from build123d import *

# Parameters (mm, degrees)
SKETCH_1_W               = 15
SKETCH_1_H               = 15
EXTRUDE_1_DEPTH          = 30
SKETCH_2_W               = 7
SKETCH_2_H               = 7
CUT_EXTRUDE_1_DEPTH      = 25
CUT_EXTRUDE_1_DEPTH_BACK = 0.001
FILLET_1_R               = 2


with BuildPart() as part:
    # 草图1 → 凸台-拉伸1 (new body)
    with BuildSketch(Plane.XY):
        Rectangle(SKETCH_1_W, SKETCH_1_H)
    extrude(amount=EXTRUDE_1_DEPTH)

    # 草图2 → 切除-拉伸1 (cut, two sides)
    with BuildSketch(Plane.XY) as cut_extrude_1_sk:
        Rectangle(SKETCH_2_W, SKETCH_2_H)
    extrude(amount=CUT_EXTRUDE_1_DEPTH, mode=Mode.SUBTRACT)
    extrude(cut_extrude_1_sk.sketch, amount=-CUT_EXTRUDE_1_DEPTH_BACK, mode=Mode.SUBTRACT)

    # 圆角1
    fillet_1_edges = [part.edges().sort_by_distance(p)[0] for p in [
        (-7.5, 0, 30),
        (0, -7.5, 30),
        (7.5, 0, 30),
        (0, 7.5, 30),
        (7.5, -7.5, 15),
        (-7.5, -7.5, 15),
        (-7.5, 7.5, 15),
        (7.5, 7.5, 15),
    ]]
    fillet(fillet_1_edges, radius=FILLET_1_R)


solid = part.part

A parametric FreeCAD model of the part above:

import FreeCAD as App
import Part
import Sketcher

V = App.Vector
Q = App.Units.Quantity


def edges_at(feature, points):
    """Names of the edges that pass closest to the given points."""
    edges = feature.Shape.Edges
    near = lambda p: min(range(len(edges)), key=lambda i: edges[i].distToShape(Part.Vertex(*p))[0])
    return sorted({f"Edge{near(p) + 1}" for p in points})

doc = App.newDocument("Part")
params = doc.addObject("Spreadsheet::Sheet", "Params")
for row, (alias, value) in enumerate([
    ("sketch1_width", "15 mm"),
    ("pad1_length", "30 mm"),
    ("sketch2_width", "7 mm"),
    ("pocket1_length", "25 mm"),
    ("pocket1_length2", "0.001 mm"),
    ("fillet_radius", "2 mm"),
], start=1):
    params.set(f"A{row}", alias)
    params.set(f"B{row}", "=" + value)
    params.setAlias(f"B{row}", alias)

body = doc.addObject("PartDesign::Body", "Body")

# Sketch on XY plane
sketch1 = doc.addObject("Sketcher::SketchObject", "Sketch")
body.addObject(sketch1)
sketch1.AttachmentSupport = (doc.XY_Plane, [""])
sketch1.MapMode = "FlatFace"
sketch1.addGeometry([
    Part.LineSegment(V(-8, 8, 0), V(-8, -8, 0)),
    Part.LineSegment(V(-8, -8, 0), V(8, -8, 0)),
    Part.LineSegment(V(8, -8, 0), V(8, 8, 0)),
    Part.LineSegment(V(8, 8, 0), V(-8, 8, 0)),
], False)
sketch1.addConstraint([
    Sketcher.Constraint("Coincident", 0, 2, 1, 1),
    Sketcher.Constraint("Coincident", 1, 2, 2, 1),
    Sketcher.Constraint("Coincident", 2, 2, 3, 1),
    Sketcher.Constraint("Coincident", 3, 2, 0, 1),
    Sketcher.Constraint("Vertical", 0),
    Sketcher.Constraint("Horizontal", 1),
    Sketcher.Constraint("Vertical", 2),
    Sketcher.Constraint("Horizontal", 3),
    Sketcher.Constraint("Symmetric", 0, 2, 2, 2, -1, 1),
    Sketcher.Constraint("Equal", 3, 0),
    Sketcher.Constraint("DistanceX", 1, 1, 1, 2, Q("15 mm")),
])
sketch1.setExpression("Constraints[10]", "Params.sketch1_width")
pad1 = doc.addObject("PartDesign::Pad", "Pad")
body.addObject(pad1)
pad1.Profile = sketch1
pad1.setExpression("Length", "Params.pad1_length")

# Sketch on XY plane
sketch2 = doc.addObject("Sketcher::SketchObject", "Sketch001")
body.addObject(sketch2)
sketch2.AttachmentSupport = (doc.XY_Plane, [""])
sketch2.MapMode = "FlatFace"
sketch2.addGeometry([
    Part.LineSegment(V(-4, 4, 0), V(-4, -4, 0)),
    Part.LineSegment(V(-4, -4, 0), V(4, -4, 0)),
    Part.LineSegment(V(4, -4, 0), V(4, 4, 0)),
    Part.LineSegment(V(4, 4, 0), V(-4, 4, 0)),
], False)
sketch2.addConstraint([
    Sketcher.Constraint("Coincident", 0, 2, 1, 1),
    Sketcher.Constraint("Coincident", 1, 2, 2, 1),
    Sketcher.Constraint("Coincident", 2, 2, 3, 1),
    Sketcher.Constraint("Coincident", 3, 2, 0, 1),
    Sketcher.Constraint("Vertical", 0),
    Sketcher.Constraint("Horizontal", 1),
    Sketcher.Constraint("Vertical", 2),
    Sketcher.Constraint("Horizontal", 3),
    Sketcher.Constraint("Symmetric", 0, 2, 2, 2, -1, 1),
    Sketcher.Constraint("Equal", 3, 0),
    Sketcher.Constraint("DistanceX", 1, 1, 1, 2, Q("7 mm")),
])
sketch2.setExpression("Constraints[10]", "Params.sketch2_width")
pocket1 = doc.addObject("PartDesign::Pocket", "Pocket")
body.addObject(pocket1)
pocket1.Profile = sketch2
pocket1.Type = "TwoLengths"
pocket1.setExpression("Length", "Params.pocket1_length")
pocket1.setExpression("Length2", "Params.pocket1_length2")
pocket1.Reversed = True
doc.recompute()

fillet = doc.addObject("PartDesign::Fillet", "Fillet")
body.addObject(fillet)
fillet.Base = (pocket1, edges_at(pocket1, [
    (-7.5, 0, 30),
    (0, -7.5, 30),
    (7.5, 0, 30),
    (0, 7.5, 30),
    (7.5, -7.5, 15),
    (-7.5, -7.5, 15),
    (-7.5, 7.5, 15),
    (7.5, 7.5, 15),
]))
fillet.setExpression("Radius", "Params.fillet_radius")

doc.recompute()
